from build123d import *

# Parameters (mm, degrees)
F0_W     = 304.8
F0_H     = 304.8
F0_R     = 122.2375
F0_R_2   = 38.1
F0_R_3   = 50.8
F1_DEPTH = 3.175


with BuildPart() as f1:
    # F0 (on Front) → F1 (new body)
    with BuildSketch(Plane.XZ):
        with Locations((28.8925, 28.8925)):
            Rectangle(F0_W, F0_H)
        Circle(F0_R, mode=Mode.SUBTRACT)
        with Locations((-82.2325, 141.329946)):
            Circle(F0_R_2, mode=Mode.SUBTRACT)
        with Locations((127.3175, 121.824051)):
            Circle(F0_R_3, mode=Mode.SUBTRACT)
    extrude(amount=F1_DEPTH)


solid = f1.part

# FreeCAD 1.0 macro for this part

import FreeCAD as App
import Part
import Sketcher
Q = App.Units.Quantity


def add_polygon(sketch, points):
    """Adds a closed chain of lines whose ends are joined by coincident constraints."""
    first, n = sketch.GeometryCount, len(points)
    for a, b in zip(points, points[1:] + points[:1]):
        sketch.addGeometry(Part.LineSegment(App.Vector(*a, 0), App.Vector(*b, 0)), False)
    for i in range(n):
        sketch.addConstraint(Sketcher.Constraint("Coincident", first + i, 2, first + (i + 1) % n, 1))

doc = App.newDocument("Part")
body = doc.addObject("PartDesign::Body", "Body")

sketch1 = doc.addObject("Sketcher::SketchObject", "Sketch")
body.addObject(sketch1)
sketch1.AttachmentSupport = (doc.XZ_Plane, [""])
sketch1.MapMode = "FlatFace"
add_polygon(sketch1, [(-124, 181), (-124, -124), (181, -124), (181, 181)])
sketch1.addGeometry(Part.Circle(App.Vector(0, 0, 0), App.Vector(0, 0, 1), 122), False)
sketch1.addGeometry(Part.Circle(App.Vector(-82, 141, 0), App.Vector(0, 0, 1), 38), False)
sketch1.addGeometry(Part.Circle(App.Vector(127, 122, 0), App.Vector(0, 0, 1), 51), False)
sketch1.addConstraint([
    Sketcher.Constraint("Vertical", 0),
    Sketcher.Constraint("Horizontal", 1),
    Sketcher.Constraint("Vertical", 2),
    Sketcher.Constraint("Horizontal", 3),
    Sketcher.Constraint("Coincident", 4, 3, -1, 1),
    Sketcher.Constraint("Equal", 3, 0),
    Sketcher.Constraint("Diameter", 5, Q("3 in")),
    Sketcher.Constraint("Diameter", 6, Q("4 in")),
    Sketcher.Constraint("DistanceX", 1, 1, 1, 2, Q("12 in")),
    Sketcher.Constraint("Diameter", 4, Q("9.625 in")),
    Sketcher.Constraint("DistanceX", 5, 3, 6, 3, Q("8.25 in")),
    Sketcher.Constraint("DistanceX", 0, 2, 5, 3, Q("1.625 in")),
    Sketcher.Constraint("DistanceX", 5, 3, -1, 1, Q("3.2375 in")),
    Sketcher.Constraint("DistanceY", 0, 2, -1, 1, Q("4.8625 in")),
    Sketcher.Constraint("DistanceY", -1, 1, 6, 3, Q("121.824051 mm")),
    Sketcher.Constraint("DistanceY", -1, 1, 5, 3, Q("141.329946 mm")),
])
pad1 = doc.addObject("PartDesign::Pad", "Pad")
body.addObject(pad1)
pad1.Profile = sketch1
pad1.Length = Q("0.125 in")

doc.recompute()
